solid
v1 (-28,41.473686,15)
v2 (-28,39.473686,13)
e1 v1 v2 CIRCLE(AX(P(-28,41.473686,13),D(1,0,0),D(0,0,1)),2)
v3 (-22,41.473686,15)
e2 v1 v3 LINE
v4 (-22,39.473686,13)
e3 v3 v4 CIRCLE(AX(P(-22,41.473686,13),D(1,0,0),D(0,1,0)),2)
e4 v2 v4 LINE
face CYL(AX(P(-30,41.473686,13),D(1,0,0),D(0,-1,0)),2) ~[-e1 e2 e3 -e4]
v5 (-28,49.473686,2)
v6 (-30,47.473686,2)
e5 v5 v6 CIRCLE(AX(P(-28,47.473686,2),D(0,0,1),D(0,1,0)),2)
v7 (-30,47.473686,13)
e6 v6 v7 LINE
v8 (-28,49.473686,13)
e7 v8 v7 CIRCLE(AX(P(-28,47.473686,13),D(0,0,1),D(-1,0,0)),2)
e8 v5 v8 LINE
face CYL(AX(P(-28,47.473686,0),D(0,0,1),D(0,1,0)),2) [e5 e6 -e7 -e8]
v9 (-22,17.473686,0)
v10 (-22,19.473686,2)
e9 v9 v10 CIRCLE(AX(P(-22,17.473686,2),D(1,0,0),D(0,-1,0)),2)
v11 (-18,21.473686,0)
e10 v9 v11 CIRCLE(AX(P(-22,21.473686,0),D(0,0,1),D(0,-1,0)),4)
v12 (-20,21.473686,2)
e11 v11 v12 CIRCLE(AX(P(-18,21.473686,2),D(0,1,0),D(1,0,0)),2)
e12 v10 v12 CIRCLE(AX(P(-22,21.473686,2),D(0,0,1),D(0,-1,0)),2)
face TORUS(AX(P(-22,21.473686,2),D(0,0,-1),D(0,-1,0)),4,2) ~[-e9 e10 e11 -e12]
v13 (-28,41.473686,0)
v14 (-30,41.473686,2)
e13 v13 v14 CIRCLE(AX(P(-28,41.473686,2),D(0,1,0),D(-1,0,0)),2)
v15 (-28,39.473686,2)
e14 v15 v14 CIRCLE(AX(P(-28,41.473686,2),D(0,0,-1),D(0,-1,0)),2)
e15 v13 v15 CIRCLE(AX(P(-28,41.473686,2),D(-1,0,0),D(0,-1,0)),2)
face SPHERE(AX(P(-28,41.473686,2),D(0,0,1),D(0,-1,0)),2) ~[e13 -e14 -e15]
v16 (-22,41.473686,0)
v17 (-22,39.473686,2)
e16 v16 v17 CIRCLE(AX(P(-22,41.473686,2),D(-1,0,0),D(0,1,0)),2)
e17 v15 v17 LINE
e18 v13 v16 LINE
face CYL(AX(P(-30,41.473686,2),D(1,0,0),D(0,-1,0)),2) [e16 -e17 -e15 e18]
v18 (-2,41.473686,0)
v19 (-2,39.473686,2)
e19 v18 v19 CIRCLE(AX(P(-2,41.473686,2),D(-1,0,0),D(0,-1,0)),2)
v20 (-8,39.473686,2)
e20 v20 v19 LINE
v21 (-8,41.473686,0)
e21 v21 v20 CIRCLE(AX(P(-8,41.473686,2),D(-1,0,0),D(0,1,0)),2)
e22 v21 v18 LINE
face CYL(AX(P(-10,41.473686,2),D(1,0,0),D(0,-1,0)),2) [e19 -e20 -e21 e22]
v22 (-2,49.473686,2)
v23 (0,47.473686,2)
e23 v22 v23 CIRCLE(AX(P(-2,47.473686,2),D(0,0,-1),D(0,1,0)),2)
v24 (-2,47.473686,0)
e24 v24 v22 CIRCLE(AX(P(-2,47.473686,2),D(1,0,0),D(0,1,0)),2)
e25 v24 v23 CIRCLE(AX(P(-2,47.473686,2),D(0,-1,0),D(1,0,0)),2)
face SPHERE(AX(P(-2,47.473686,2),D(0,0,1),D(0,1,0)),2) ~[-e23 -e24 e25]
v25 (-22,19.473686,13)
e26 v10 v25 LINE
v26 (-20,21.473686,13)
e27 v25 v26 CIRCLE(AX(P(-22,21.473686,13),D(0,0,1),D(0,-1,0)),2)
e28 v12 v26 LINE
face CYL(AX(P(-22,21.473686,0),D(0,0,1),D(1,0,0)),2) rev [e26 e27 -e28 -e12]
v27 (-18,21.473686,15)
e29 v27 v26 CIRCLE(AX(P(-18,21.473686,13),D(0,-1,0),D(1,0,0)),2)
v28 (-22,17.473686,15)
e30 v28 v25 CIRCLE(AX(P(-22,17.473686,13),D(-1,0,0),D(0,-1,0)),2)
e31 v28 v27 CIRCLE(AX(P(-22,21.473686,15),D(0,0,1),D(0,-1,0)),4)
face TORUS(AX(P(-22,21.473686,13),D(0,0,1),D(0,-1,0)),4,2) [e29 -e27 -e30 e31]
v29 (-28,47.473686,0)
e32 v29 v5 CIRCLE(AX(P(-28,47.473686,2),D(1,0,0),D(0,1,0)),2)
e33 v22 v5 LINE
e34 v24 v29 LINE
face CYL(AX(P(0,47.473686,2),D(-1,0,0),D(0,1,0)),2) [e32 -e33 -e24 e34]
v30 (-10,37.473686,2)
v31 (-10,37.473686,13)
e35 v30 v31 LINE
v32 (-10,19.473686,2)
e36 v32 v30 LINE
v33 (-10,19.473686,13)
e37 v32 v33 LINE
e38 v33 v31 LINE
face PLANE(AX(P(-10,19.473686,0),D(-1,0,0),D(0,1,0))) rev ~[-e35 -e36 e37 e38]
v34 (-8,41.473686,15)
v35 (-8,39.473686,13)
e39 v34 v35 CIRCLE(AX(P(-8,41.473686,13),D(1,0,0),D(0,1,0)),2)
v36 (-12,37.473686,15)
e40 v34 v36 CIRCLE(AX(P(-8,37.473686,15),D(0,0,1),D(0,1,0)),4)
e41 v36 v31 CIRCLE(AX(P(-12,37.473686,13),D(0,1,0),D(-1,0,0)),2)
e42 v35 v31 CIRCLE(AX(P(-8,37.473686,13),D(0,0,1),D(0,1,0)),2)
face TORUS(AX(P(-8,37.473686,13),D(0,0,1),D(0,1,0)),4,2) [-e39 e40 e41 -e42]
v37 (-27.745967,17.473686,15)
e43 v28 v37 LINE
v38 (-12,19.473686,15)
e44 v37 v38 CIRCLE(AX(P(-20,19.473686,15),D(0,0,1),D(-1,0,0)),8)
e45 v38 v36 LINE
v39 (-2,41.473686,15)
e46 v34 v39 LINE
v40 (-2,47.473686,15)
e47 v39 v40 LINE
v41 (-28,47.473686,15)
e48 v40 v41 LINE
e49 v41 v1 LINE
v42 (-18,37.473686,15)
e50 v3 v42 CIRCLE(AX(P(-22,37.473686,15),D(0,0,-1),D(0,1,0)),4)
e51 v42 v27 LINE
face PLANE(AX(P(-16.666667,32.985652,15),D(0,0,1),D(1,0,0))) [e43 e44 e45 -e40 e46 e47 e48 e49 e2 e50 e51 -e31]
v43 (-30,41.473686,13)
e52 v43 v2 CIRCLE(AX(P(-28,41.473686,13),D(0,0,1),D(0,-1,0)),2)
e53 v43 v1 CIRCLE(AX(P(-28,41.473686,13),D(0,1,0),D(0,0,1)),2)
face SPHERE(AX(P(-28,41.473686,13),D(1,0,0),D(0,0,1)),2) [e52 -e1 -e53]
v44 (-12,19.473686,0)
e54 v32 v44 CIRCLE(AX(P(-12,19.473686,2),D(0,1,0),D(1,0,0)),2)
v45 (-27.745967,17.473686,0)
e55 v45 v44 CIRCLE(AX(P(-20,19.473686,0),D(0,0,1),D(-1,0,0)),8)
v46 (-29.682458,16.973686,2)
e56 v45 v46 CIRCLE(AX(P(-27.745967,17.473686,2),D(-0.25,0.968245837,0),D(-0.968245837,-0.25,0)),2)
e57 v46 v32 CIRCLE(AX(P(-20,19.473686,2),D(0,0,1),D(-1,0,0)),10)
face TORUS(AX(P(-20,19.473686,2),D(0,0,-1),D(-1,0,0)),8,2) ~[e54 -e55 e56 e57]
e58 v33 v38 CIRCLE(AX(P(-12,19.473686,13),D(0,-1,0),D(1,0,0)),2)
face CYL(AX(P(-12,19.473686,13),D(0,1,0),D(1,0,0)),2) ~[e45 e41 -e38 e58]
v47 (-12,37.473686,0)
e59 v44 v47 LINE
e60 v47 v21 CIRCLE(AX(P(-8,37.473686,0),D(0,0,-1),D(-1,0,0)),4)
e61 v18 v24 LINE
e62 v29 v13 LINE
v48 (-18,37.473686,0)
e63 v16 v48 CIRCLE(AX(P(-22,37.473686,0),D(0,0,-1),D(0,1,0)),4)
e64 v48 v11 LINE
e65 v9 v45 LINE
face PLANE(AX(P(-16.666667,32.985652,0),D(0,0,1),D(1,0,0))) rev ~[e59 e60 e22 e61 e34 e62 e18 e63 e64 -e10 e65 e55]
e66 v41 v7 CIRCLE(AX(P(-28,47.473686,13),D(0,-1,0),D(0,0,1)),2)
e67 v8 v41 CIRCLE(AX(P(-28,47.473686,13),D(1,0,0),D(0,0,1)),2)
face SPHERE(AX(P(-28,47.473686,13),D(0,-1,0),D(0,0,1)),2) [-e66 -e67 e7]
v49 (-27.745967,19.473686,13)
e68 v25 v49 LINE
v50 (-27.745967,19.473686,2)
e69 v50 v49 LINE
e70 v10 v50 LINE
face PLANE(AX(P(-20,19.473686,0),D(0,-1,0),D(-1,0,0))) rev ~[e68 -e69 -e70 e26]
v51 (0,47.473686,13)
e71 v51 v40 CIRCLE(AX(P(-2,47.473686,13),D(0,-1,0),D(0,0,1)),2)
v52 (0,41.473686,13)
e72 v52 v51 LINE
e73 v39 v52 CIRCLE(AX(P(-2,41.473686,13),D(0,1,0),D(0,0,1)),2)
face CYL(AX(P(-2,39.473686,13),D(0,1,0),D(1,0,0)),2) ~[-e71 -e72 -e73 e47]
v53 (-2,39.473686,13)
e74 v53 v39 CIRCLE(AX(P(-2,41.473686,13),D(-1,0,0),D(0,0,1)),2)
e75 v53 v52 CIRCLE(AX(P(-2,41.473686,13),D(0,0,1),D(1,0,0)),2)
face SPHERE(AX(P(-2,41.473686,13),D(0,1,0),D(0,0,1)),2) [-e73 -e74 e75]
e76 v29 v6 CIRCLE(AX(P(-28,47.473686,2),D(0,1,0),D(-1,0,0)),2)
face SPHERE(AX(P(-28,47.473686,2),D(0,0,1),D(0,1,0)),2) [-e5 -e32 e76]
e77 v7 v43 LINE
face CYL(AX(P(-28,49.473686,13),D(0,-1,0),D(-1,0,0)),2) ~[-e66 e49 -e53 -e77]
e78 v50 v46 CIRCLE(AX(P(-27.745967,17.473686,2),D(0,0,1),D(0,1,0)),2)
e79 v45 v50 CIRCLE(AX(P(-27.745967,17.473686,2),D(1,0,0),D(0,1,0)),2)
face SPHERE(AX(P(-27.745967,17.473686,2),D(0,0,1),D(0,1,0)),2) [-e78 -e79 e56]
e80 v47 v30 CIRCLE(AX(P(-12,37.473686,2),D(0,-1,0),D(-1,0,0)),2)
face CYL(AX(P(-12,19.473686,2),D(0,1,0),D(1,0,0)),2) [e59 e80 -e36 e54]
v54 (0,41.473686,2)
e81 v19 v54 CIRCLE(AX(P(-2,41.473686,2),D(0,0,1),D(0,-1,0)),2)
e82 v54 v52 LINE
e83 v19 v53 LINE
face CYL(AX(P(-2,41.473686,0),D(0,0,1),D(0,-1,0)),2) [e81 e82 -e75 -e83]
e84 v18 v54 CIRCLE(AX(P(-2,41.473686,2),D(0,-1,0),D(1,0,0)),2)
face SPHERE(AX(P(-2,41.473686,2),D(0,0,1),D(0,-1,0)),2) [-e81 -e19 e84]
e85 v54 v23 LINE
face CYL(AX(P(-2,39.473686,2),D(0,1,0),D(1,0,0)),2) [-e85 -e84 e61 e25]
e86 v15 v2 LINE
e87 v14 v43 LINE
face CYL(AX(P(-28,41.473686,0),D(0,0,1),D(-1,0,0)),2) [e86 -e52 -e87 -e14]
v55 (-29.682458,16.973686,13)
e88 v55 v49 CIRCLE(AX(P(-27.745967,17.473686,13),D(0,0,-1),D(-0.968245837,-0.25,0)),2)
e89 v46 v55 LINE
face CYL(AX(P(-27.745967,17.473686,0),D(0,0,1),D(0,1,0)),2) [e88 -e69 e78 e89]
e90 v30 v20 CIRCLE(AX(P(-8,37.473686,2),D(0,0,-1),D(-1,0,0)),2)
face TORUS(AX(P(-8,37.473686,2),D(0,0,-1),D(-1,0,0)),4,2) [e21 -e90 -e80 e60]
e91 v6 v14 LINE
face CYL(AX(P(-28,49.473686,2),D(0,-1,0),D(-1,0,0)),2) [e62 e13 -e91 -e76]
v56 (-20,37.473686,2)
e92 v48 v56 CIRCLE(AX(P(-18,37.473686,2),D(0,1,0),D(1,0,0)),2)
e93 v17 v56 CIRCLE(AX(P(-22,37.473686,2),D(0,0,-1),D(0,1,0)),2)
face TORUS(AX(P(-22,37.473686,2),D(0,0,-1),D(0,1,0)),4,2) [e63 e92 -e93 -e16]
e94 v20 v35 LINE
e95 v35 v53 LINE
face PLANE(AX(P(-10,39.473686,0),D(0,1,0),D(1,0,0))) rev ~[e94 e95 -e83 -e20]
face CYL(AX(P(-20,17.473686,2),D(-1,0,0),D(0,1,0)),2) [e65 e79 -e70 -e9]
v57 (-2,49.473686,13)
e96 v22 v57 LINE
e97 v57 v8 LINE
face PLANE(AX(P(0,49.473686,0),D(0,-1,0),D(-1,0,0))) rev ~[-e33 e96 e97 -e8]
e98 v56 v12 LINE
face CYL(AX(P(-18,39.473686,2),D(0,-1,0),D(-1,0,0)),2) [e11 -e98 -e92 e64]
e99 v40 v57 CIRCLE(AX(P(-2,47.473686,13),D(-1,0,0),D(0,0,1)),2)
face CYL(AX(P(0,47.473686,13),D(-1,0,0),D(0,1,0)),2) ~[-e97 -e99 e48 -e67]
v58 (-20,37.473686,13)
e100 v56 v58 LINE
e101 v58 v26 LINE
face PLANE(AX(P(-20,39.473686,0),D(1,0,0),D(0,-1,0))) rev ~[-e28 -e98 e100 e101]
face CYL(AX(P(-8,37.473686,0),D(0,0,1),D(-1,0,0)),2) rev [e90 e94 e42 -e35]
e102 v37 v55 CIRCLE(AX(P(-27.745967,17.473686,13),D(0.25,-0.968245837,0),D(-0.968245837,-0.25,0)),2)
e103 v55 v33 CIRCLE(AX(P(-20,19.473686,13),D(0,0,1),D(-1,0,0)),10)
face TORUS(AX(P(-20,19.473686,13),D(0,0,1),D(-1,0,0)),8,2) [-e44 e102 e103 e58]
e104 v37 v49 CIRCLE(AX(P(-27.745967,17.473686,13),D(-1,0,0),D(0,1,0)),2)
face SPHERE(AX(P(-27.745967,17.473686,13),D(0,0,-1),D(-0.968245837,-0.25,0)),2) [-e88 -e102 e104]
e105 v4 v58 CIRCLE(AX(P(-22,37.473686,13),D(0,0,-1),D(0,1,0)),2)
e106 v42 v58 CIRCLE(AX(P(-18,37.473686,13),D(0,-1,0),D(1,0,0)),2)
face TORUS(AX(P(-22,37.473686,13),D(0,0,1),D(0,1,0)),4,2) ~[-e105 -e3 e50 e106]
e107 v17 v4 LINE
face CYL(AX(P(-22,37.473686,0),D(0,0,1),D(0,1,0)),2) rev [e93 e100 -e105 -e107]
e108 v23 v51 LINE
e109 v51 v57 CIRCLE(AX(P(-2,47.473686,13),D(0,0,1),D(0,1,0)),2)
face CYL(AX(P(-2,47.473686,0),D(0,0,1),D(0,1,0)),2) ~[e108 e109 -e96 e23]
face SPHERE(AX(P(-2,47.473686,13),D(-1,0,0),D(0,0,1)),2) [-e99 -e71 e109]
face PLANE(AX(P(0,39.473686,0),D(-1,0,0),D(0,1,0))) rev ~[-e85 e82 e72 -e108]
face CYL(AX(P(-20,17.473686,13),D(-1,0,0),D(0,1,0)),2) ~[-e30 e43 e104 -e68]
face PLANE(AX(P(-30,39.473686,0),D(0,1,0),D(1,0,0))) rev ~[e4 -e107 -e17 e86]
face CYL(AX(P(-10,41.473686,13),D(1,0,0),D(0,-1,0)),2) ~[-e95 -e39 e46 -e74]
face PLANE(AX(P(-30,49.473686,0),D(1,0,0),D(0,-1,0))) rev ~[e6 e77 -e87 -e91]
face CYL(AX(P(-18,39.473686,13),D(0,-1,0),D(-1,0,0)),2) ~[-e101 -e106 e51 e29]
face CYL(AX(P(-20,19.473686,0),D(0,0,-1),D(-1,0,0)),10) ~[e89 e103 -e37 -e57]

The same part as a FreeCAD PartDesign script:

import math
import FreeCAD as App
import Part
import Sketcher
Q = App.Units.Quantity

doc = App.newDocument("Part")
params = doc.addObject("Spreadsheet::Sheet", "Params")
for row, (alias, value) in enumerate([
    ("sketch1_radius", "10 mm"),
    ("sketch1_height", "20 mm"),
    ("pad1_length", "15 mm"),
    ("fillet_radius", "2 mm"),
], start=1):
    params.set(f"A{row}", alias)
    params.set(f"B{row}", "=" + value)
    params.setAlias(f"B{row}", alias)

body = doc.addObject("PartDesign::Body", "Body")

sketch1 = doc.addObject("Sketcher::SketchObject", "Sketch")
body.addObject(sketch1)
sketch1.AttachmentSupport = (doc.XY_Plane, [""])
sketch1.MapMode = "FlatFace"
sketch1.addGeometry(Part.LineSegment(App.Vector(0, 49.473686, 0), App.Vector(-30, 49.473686, 0)), False)
sketch1.addGeometry(Part.LineSegment(App.Vector(-30, 49.473686, 0), App.Vector(-30, 39.473686, 0)), False)
sketch1.addGeometry(Part.LineSegment(App.Vector(-30, 39.473686, 0), App.Vector(-20, 39.473686, 0)), False)
sketch1.addGeometry(Part.LineSegment(App.Vector(-20, 39.473686, 0), App.Vector(-20, 19.473686, 0)), False)
sketch1.addGeometry(Part.LineSegment(App.Vector(-20, 19.473686, 0), App.Vector(-30, 19.473686, 0)), False)
sketch1.addGeometry(Part.ArcOfCircle(Part.Circle(App.Vector(-20, 19.473686, 0), App.Vector(0, 0, 1), 10), math.radians(180), math.radians(360)), False)
sketch1.addGeometry(Part.LineSegment(App.Vector(-10, 19.473686, 0), App.Vector(-10, 39.473686, 0)), False)
sketch1.addGeometry(Part.LineSegment(App.Vector(-10, 39.473686, 0), App.Vector(0, 39.473686, 0)), False)
sketch1.addGeometry(Part.LineSegment(App.Vector(0, 39.473686, 0), App.Vector(0, 49.473686, 0)), False)
sketch1.addConstraint(Sketcher.Constraint("Coincident", 0, 2, 1, 1))
sketch1.addConstraint(Sketcher.Constraint("Coincident", 1, 2, 2, 1))
sketch1.addConstraint(Sketcher.Constraint("Coincident", 2, 2, 3, 1))
sketch1.addConstraint(Sketcher.Constraint("Coincident", 3, 2, 4, 1))
sketch1.addConstraint(Sketcher.Constraint("Coincident", 4, 2, 5, 1))
sketch1.addConstraint(Sketcher.Constraint("Tangent", 5, 2, 6, 1))
sketch1.addConstraint(Sketcher.Constraint("Coincident", 6, 2, 7, 1))
sketch1.addConstraint(Sketcher.Constraint("Coincident", 7, 2, 8, 1))
sketch1.addConstraint(Sketcher.Constraint("Coincident", 8, 2, 0, 1))
sketch1.addConstraint(Sketcher.Constraint("Horizontal", 0))
sketch1.addConstraint(Sketcher.Constraint("Vertical", 1))
sketch1.addConstraint(Sketcher.Constraint("Horizontal", 2))
sketch1.addConstraint(Sketcher.Constraint("Vertical", 3))
sketch1.addConstraint(Sketcher.Constraint("Horizontal", 4))
sketch1.addConstraint(Sketcher.Constraint("Vertical", 6))
sketch1.addConstraint(Sketcher.Constraint("Horizontal", 7))
sketch1.addConstraint(Sketcher.Constraint("Vertical", 8))
sketch1.addConstraint(Sketcher.Constraint("Coincident", 3, 2, 5, 3))
sketch1.addConstraint(Sketcher.Constraint("PointOnObject", 7, 2, -2))
sketch1.addConstraint(Sketcher.Constraint("Horizontal", 2, 2, 6, 2))
sketch1.addConstraint(Sketcher.Constraint("Vertical", 1, 2, 4, 2))
sketch1.addConstraint(Sketcher.Constraint("Equal", 4, 7))
sketch1.addConstraint(Sketcher.Constraint("Equal", 7, 1))
sketch1.addConstraint(Sketcher.Constraint("Radius", 5, Q("10 mm")))
sketch1.addConstraint(Sketcher.Constraint("DistanceY", 3, 2, 3, 1, Q("20 mm")))
sketch1.addConstraint(Sketcher.Constraint("DistanceY", -1, 1, 5, 3, Q("19.473686 mm")))
sketch1.setExpression("Constraints[23]", "Params.sketch1_radius")
sketch1.setExpression("Constraints[24]", "Params.sketch1_height")
pad1 = doc.addObject("PartDesign::Pad", "Pad")
body.addObject(pad1)
pad1.Profile = sketch1
pad1.setExpression("Length", "Params.pad1_length")
doc.recompute()

fillet = doc.addObject("PartDesign::Fillet", "Fillet")
body.addObject(fillet)
fillet.Base = (pad1, ["Edge1"])
fillet.UseAllEdges = True
fillet.setExpression("Radius", "Params.fillet_radius")

doc.recompute()
